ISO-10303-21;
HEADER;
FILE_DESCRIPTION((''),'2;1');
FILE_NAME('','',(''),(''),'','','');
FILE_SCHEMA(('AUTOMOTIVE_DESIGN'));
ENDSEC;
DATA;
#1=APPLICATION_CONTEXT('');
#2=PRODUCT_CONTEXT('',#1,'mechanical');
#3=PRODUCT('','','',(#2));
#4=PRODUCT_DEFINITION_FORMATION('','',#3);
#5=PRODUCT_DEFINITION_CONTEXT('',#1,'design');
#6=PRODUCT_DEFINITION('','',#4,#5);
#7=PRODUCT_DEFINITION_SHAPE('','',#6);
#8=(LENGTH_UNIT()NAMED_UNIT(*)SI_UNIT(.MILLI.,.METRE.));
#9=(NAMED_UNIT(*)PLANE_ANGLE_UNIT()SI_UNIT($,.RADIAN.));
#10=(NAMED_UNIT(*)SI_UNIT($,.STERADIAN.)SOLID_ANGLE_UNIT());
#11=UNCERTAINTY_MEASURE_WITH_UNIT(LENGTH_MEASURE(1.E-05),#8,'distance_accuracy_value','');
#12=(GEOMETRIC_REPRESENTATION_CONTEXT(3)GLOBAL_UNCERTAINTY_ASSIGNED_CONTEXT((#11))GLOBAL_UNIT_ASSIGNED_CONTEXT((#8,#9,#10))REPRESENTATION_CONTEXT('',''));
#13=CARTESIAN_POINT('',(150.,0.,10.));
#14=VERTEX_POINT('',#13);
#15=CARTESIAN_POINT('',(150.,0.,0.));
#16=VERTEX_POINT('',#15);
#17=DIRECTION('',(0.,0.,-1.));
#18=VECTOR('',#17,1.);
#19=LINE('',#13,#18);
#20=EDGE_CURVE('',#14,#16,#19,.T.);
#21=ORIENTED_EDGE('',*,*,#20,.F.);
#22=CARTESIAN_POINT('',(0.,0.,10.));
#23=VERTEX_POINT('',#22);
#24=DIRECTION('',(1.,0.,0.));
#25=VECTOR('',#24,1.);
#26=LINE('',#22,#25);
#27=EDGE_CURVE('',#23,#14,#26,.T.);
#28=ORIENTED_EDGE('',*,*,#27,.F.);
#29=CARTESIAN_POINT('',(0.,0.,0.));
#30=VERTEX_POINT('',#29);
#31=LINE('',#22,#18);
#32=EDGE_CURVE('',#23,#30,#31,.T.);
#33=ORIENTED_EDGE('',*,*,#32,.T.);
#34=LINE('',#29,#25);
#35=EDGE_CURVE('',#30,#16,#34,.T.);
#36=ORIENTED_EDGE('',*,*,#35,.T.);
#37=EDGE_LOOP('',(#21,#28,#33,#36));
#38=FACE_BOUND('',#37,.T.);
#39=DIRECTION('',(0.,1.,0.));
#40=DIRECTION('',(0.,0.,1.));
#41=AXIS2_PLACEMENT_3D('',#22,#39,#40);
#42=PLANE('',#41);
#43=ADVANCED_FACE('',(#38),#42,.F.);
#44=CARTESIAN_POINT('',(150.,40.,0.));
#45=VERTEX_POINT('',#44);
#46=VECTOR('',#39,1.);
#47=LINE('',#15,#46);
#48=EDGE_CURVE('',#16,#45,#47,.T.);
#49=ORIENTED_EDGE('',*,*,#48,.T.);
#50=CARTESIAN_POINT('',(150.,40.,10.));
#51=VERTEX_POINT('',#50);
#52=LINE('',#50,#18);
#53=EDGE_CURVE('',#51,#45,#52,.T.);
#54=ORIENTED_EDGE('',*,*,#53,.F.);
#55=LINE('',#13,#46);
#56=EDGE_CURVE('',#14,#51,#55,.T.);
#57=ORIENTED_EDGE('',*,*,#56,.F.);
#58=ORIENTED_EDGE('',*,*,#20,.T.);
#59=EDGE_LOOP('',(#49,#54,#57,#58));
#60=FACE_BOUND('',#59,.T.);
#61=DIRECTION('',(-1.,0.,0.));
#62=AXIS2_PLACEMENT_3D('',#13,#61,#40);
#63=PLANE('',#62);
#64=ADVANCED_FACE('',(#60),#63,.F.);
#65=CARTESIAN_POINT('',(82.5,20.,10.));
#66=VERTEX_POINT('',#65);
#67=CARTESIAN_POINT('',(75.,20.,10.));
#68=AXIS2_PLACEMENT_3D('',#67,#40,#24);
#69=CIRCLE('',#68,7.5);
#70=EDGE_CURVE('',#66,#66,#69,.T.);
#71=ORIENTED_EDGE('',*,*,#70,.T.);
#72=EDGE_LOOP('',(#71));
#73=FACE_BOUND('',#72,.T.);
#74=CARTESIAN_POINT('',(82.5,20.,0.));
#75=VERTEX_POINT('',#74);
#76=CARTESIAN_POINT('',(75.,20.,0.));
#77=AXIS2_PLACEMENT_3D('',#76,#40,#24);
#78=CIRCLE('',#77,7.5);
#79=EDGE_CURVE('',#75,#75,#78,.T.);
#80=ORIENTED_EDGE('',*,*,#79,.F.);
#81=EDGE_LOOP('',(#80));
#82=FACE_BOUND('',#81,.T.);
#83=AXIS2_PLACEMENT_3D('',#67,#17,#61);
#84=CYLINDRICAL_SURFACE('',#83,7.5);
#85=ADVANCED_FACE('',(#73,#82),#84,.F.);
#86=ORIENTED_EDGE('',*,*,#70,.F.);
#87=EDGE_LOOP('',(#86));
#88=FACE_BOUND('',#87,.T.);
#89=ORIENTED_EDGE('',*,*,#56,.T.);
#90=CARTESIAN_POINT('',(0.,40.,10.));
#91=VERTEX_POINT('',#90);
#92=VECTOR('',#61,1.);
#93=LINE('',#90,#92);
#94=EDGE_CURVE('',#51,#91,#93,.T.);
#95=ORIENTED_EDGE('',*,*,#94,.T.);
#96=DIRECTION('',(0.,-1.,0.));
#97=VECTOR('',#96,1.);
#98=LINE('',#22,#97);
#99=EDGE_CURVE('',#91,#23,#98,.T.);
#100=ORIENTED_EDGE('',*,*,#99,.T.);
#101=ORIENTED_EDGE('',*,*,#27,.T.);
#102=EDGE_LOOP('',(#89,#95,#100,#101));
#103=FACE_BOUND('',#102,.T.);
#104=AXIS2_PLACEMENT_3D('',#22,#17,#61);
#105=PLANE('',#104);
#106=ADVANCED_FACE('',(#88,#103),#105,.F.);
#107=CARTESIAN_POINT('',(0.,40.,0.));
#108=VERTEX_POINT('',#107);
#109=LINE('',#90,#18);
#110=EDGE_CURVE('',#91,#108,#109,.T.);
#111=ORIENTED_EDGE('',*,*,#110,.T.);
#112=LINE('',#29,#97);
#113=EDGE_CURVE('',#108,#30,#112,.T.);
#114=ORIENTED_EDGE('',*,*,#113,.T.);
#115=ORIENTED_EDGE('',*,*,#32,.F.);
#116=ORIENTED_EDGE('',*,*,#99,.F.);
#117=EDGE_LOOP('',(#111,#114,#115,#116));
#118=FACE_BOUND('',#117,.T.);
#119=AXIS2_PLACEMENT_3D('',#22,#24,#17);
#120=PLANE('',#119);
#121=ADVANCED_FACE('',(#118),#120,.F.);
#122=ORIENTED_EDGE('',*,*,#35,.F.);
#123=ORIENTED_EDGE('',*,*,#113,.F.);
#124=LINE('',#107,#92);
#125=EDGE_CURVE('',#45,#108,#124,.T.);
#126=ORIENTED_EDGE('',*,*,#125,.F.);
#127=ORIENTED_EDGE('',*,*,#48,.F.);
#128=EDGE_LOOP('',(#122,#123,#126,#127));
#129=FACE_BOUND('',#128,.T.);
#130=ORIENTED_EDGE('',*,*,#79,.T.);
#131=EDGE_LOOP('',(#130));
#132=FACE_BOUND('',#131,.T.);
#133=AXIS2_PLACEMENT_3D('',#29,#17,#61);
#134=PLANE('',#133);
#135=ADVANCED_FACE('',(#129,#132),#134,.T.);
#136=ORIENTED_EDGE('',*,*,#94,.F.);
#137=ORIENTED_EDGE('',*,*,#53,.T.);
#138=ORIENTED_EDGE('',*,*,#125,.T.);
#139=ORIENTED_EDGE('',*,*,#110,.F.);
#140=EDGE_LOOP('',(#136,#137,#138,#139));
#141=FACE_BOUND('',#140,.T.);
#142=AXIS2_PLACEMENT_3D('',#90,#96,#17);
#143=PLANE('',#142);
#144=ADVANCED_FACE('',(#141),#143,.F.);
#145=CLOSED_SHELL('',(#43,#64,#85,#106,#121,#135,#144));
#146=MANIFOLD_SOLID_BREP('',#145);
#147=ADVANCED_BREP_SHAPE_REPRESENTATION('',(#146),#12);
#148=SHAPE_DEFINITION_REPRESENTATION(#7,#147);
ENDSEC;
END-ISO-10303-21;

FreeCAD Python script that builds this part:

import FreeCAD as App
import Part
import Sketcher

doc = App.newDocument("Part")
body = doc.addObject("PartDesign::Body", "Body")

# Sketch on XY plane
sketch1 = doc.addObject("Sketcher::SketchObject", "Sketch")
body.addObject(sketch1)
sketch1.AttachmentSupport = (doc.XY_Plane, [""])
sketch1.MapMode = "FlatFace"
sketch1.addGeometry(Part.LineSegment(App.Vector(0, 40, 0), App.Vector(0, 0, 0)), False)
sketch1.addGeometry(Part.LineSegment(App.Vector(0, 0, 0), App.Vector(150, 0, 0)), False)
sketch1.addGeometry(Part.LineSegment(App.Vector(150, 0, 0), App.Vector(150, 40, 0)), False)
sketch1.addGeometry(Part.LineSegment(App.Vector(150, 40, 0), App.Vector(0, 40, 0)), False)
sketch1.addGeometry(Part.Circle(App.Vector(75, 20, 0), App.Vector(0, 0, 1), 8), False)
sketch1.addConstraint(Sketcher.Constraint("Coincident", 0, 2, 1, 1))
sketch1.addConstraint(Sketcher.Constraint("Coincident", 1, 2, 2, 1))
sketch1.addConstraint(Sketcher.Constraint("Coincident", 2, 2, 3, 1))
sketch1.addConstraint(Sketcher.Constraint("Coincident", 3, 2, 0, 1))
sketch1.addConstraint(Sketcher.Constraint("Vertical", 0))
sketch1.addConstraint(Sketcher.Constraint("Horizontal", 1))
sketch1.addConstraint(Sketcher.Constraint("Vertical", 2))
sketch1.addConstraint(Sketcher.Constraint("Horizontal", 3))
sketch1.addConstraint(Sketcher.Constraint("Coincident", 0, 2, -1, 1))
sketch1.addConstraint(Sketcher.Constraint("Diameter", 4, 15.0))
sketch1.addConstraint(Sketcher.Constraint("DistanceX", 1, 1, 1, 2, 150.0))
sketch1.addConstraint(Sketcher.Constraint("DistanceY", 0, 2, 0, 1, 40.0))
sketch1.addConstraint(Sketcher.Constraint("DistanceX", -1, 1, 4, 3, 75.0))
sketch1.addConstraint(Sketcher.Constraint("DistanceY", -1, 1, 4, 3, 20.0))
pad1 = doc.addObject("PartDesign::Pad", "Pad")
body.addObject(pad1)
pad1.Profile = sketch1
pad1.Length = 10

doc.recompute()
